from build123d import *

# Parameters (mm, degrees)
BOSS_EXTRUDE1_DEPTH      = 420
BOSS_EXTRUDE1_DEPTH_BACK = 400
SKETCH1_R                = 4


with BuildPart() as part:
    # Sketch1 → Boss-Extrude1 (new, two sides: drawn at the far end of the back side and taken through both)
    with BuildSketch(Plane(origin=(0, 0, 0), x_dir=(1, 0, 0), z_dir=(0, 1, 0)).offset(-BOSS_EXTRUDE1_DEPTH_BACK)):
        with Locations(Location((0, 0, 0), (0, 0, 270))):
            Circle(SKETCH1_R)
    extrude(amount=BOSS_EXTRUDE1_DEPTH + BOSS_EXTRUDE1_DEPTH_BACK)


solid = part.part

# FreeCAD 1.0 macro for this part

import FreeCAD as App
import Part
import Sketcher
Q = App.Units.Quantity

doc = App.newDocument("Part")
body = doc.addObject("PartDesign::Body", "Body")

# Sketch on XZ plane
sketch1 = doc.addObject("Sketcher::SketchObject", "Sketch")
body.addObject(sketch1)
sketch1.AttachmentSupport = (doc.XZ_Plane, [""])
sketch1.MapMode = "FlatFace"
sketch1.addGeometry(Part.Circle(App.Vector(0, 0, 0), App.Vector(0, 0, 1), 4), False)
sketch1.addConstraint([
    Sketcher.Constraint("Coincident", 0, 3, -1, 1),
    Sketcher.Constraint("Diameter", 0, Q("8 mm")),
])
pad1 = doc.addObject("PartDesign::Pad", "Pad")
body.addObject(pad1)
pad1.Profile = sketch1
pad1.Type = "TwoLengths"
pad1.Length = 420
pad1.Length2 = 400
pad1.Reversed = True

doc.recompute()
